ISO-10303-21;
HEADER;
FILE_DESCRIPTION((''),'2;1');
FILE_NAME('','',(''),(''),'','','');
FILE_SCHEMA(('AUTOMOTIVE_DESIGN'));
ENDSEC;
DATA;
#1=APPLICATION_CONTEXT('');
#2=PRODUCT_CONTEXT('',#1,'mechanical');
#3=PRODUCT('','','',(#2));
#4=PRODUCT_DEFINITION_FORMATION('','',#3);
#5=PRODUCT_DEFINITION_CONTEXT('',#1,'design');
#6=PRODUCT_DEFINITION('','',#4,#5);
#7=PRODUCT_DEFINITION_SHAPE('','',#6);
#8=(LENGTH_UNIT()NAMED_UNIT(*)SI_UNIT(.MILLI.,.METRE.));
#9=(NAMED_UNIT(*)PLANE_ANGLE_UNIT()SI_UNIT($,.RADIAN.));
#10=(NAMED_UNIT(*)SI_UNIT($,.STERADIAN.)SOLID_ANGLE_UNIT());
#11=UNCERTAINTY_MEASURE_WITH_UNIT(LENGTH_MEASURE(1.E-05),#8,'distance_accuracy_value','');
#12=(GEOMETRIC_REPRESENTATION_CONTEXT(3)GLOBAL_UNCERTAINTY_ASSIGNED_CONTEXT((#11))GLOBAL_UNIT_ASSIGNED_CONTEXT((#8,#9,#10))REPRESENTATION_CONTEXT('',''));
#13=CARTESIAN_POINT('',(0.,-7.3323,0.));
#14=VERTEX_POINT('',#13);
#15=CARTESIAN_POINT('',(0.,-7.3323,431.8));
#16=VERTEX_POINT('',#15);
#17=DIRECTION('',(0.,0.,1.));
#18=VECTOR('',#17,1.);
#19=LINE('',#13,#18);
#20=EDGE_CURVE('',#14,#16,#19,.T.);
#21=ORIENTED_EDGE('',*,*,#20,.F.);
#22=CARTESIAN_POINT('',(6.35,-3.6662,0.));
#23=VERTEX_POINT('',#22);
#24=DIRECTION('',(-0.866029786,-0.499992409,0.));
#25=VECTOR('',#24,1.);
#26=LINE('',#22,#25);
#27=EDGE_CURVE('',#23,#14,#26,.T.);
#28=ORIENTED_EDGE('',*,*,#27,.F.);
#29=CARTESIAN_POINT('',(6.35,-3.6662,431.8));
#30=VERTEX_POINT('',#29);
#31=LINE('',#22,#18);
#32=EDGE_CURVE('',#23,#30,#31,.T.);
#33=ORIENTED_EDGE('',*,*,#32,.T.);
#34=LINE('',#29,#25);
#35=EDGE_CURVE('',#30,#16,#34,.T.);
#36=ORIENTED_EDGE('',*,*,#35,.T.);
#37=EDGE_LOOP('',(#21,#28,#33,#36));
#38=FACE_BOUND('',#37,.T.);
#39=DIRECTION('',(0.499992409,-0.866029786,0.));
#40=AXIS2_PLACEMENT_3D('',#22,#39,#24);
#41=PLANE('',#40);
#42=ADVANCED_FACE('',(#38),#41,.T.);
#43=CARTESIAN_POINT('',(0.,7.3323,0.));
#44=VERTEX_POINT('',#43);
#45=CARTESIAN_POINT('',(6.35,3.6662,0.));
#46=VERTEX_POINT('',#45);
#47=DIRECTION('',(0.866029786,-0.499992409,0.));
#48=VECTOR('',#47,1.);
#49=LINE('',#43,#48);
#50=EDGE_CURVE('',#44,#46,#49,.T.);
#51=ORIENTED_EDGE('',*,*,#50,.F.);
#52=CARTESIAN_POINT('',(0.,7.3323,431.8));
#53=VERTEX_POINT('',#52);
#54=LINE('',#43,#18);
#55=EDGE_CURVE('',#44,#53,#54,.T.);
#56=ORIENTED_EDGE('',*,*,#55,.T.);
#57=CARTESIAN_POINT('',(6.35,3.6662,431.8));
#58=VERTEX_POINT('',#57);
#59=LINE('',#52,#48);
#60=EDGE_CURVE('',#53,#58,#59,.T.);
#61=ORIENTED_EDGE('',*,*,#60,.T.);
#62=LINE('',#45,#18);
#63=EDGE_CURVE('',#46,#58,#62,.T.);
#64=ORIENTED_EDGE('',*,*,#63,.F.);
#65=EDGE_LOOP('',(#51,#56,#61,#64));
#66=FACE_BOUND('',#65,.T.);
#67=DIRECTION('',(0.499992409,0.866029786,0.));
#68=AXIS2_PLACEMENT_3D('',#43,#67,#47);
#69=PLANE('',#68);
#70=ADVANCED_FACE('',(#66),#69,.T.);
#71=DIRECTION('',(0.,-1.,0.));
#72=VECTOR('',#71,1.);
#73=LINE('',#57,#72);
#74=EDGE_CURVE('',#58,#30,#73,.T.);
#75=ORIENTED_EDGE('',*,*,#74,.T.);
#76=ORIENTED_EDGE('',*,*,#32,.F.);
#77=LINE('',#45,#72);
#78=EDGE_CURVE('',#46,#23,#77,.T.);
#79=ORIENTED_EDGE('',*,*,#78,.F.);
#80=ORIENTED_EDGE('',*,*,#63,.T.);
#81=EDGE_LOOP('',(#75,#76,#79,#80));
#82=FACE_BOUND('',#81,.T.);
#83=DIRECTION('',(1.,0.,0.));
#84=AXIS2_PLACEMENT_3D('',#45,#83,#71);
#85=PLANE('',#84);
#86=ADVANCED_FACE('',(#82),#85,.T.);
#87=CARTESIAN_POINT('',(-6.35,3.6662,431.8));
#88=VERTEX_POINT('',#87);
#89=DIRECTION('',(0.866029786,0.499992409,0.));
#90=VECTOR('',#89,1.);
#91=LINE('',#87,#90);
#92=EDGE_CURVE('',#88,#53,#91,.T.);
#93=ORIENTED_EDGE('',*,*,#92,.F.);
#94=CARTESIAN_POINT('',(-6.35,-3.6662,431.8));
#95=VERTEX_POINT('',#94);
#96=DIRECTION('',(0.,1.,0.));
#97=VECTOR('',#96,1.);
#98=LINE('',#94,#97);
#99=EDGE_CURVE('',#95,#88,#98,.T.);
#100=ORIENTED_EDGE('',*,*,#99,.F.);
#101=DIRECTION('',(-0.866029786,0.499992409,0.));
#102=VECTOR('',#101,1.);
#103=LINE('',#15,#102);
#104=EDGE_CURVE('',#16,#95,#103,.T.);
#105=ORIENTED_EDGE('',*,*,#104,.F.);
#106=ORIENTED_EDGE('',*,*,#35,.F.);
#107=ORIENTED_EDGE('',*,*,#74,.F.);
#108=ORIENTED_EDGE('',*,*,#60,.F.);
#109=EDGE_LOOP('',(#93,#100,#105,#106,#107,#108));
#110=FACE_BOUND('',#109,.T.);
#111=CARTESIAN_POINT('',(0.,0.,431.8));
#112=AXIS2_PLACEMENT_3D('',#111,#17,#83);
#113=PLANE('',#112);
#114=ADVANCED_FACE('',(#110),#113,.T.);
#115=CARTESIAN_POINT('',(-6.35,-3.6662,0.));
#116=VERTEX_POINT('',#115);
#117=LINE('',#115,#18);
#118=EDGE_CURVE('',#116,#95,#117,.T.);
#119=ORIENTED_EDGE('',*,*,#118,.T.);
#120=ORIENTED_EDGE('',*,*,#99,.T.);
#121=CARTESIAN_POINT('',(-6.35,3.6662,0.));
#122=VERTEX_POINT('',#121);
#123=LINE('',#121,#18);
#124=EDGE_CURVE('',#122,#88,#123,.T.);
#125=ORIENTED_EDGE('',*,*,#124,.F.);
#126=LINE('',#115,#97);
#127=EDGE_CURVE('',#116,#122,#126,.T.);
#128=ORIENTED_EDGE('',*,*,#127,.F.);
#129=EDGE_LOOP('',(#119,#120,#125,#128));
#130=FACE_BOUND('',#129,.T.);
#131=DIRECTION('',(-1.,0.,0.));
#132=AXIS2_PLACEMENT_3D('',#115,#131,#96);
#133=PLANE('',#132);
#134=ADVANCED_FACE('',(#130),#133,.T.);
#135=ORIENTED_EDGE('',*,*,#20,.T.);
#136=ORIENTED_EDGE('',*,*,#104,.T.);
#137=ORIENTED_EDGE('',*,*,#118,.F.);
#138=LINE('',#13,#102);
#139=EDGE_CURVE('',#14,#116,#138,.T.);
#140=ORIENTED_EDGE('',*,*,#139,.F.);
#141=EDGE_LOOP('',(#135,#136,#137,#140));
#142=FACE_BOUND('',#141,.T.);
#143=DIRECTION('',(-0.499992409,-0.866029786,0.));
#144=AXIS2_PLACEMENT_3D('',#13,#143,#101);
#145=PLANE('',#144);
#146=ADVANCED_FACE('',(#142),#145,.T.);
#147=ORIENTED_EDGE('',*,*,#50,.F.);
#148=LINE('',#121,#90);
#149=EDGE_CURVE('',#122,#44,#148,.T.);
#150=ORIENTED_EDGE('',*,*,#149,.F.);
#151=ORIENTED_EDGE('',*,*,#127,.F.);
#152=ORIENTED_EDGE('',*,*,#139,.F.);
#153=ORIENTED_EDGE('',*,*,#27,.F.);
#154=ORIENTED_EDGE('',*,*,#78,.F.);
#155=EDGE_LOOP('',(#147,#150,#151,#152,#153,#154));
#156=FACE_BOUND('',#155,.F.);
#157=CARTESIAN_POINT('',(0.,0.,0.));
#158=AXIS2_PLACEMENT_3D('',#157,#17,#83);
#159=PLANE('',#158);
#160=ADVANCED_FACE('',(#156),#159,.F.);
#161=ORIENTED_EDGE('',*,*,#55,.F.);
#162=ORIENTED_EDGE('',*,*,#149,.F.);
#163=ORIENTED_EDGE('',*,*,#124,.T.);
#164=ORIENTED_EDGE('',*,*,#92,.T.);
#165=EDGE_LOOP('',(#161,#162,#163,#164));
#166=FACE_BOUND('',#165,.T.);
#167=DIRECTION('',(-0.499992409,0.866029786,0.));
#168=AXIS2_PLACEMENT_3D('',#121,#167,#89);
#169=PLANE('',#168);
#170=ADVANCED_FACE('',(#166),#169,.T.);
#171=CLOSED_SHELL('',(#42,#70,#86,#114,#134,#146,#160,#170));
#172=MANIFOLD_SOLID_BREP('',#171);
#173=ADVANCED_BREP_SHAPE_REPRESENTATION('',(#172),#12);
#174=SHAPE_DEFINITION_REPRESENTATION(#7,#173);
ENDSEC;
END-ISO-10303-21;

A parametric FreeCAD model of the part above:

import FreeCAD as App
import Part
import Sketcher
Q = App.Units.Quantity


def add_polygon(sketch, points):
    """Adds a closed chain of lines whose ends are joined by coincident constraints."""
    first, n = sketch.GeometryCount, len(points)
    for a, b in zip(points, points[1:] + points[:1]):
        sketch.addGeometry(Part.LineSegment(App.Vector(*a, 0), App.Vector(*b, 0)), False)
    for i in range(n):
        sketch.addConstraint(Sketcher.Constraint("Coincident", first + i, 2, first + (i + 1) % n, 1))

doc = App.newDocument("Part")
body = doc.addObject("PartDesign::Body", "Body")

sketch1 = body.newObject("Sketcher::SketchObject", "Sketch")
sketch1.AttachmentSupport = (doc.getObject("XY_Plane"), [""])
sketch1.MapMode = "FlatFace"
add_polygon(sketch1, [(6, -4), (6, 4), (0, 7), (-6, 4), (-6, -4), (0, -7)])
sketch1.addConstraint([
    Sketcher.Constraint("Vertical", 0),
    Sketcher.Constraint("Vertical", 3),
    Sketcher.Constraint("Symmetric", 0, 2, 3, 2, -1, 1),
    Sketcher.Constraint("Symmetric", 1, 2, 4, 2, -1, 1),
    Sketcher.Constraint("PointOnObject", 1, 2, -2),
    Sketcher.Constraint("Parallel", 2, 5),
    Sketcher.Constraint("Horizontal", 0, 2, 2, 2),
    Sketcher.Constraint("DistanceX", 2, 2, 0, 2, Q("0.5 in")),
    Sketcher.Constraint("Angle", 1, Q("150.0005 deg")),
    Sketcher.Constraint("DistanceY", 3, 2, 1, 2, Q("0.433 in")),
])
pad1 = body.newObject("PartDesign::Pad", "Pad")
pad1.Profile = sketch1
pad1.Length = Q("17 in")

doc.recompute()
